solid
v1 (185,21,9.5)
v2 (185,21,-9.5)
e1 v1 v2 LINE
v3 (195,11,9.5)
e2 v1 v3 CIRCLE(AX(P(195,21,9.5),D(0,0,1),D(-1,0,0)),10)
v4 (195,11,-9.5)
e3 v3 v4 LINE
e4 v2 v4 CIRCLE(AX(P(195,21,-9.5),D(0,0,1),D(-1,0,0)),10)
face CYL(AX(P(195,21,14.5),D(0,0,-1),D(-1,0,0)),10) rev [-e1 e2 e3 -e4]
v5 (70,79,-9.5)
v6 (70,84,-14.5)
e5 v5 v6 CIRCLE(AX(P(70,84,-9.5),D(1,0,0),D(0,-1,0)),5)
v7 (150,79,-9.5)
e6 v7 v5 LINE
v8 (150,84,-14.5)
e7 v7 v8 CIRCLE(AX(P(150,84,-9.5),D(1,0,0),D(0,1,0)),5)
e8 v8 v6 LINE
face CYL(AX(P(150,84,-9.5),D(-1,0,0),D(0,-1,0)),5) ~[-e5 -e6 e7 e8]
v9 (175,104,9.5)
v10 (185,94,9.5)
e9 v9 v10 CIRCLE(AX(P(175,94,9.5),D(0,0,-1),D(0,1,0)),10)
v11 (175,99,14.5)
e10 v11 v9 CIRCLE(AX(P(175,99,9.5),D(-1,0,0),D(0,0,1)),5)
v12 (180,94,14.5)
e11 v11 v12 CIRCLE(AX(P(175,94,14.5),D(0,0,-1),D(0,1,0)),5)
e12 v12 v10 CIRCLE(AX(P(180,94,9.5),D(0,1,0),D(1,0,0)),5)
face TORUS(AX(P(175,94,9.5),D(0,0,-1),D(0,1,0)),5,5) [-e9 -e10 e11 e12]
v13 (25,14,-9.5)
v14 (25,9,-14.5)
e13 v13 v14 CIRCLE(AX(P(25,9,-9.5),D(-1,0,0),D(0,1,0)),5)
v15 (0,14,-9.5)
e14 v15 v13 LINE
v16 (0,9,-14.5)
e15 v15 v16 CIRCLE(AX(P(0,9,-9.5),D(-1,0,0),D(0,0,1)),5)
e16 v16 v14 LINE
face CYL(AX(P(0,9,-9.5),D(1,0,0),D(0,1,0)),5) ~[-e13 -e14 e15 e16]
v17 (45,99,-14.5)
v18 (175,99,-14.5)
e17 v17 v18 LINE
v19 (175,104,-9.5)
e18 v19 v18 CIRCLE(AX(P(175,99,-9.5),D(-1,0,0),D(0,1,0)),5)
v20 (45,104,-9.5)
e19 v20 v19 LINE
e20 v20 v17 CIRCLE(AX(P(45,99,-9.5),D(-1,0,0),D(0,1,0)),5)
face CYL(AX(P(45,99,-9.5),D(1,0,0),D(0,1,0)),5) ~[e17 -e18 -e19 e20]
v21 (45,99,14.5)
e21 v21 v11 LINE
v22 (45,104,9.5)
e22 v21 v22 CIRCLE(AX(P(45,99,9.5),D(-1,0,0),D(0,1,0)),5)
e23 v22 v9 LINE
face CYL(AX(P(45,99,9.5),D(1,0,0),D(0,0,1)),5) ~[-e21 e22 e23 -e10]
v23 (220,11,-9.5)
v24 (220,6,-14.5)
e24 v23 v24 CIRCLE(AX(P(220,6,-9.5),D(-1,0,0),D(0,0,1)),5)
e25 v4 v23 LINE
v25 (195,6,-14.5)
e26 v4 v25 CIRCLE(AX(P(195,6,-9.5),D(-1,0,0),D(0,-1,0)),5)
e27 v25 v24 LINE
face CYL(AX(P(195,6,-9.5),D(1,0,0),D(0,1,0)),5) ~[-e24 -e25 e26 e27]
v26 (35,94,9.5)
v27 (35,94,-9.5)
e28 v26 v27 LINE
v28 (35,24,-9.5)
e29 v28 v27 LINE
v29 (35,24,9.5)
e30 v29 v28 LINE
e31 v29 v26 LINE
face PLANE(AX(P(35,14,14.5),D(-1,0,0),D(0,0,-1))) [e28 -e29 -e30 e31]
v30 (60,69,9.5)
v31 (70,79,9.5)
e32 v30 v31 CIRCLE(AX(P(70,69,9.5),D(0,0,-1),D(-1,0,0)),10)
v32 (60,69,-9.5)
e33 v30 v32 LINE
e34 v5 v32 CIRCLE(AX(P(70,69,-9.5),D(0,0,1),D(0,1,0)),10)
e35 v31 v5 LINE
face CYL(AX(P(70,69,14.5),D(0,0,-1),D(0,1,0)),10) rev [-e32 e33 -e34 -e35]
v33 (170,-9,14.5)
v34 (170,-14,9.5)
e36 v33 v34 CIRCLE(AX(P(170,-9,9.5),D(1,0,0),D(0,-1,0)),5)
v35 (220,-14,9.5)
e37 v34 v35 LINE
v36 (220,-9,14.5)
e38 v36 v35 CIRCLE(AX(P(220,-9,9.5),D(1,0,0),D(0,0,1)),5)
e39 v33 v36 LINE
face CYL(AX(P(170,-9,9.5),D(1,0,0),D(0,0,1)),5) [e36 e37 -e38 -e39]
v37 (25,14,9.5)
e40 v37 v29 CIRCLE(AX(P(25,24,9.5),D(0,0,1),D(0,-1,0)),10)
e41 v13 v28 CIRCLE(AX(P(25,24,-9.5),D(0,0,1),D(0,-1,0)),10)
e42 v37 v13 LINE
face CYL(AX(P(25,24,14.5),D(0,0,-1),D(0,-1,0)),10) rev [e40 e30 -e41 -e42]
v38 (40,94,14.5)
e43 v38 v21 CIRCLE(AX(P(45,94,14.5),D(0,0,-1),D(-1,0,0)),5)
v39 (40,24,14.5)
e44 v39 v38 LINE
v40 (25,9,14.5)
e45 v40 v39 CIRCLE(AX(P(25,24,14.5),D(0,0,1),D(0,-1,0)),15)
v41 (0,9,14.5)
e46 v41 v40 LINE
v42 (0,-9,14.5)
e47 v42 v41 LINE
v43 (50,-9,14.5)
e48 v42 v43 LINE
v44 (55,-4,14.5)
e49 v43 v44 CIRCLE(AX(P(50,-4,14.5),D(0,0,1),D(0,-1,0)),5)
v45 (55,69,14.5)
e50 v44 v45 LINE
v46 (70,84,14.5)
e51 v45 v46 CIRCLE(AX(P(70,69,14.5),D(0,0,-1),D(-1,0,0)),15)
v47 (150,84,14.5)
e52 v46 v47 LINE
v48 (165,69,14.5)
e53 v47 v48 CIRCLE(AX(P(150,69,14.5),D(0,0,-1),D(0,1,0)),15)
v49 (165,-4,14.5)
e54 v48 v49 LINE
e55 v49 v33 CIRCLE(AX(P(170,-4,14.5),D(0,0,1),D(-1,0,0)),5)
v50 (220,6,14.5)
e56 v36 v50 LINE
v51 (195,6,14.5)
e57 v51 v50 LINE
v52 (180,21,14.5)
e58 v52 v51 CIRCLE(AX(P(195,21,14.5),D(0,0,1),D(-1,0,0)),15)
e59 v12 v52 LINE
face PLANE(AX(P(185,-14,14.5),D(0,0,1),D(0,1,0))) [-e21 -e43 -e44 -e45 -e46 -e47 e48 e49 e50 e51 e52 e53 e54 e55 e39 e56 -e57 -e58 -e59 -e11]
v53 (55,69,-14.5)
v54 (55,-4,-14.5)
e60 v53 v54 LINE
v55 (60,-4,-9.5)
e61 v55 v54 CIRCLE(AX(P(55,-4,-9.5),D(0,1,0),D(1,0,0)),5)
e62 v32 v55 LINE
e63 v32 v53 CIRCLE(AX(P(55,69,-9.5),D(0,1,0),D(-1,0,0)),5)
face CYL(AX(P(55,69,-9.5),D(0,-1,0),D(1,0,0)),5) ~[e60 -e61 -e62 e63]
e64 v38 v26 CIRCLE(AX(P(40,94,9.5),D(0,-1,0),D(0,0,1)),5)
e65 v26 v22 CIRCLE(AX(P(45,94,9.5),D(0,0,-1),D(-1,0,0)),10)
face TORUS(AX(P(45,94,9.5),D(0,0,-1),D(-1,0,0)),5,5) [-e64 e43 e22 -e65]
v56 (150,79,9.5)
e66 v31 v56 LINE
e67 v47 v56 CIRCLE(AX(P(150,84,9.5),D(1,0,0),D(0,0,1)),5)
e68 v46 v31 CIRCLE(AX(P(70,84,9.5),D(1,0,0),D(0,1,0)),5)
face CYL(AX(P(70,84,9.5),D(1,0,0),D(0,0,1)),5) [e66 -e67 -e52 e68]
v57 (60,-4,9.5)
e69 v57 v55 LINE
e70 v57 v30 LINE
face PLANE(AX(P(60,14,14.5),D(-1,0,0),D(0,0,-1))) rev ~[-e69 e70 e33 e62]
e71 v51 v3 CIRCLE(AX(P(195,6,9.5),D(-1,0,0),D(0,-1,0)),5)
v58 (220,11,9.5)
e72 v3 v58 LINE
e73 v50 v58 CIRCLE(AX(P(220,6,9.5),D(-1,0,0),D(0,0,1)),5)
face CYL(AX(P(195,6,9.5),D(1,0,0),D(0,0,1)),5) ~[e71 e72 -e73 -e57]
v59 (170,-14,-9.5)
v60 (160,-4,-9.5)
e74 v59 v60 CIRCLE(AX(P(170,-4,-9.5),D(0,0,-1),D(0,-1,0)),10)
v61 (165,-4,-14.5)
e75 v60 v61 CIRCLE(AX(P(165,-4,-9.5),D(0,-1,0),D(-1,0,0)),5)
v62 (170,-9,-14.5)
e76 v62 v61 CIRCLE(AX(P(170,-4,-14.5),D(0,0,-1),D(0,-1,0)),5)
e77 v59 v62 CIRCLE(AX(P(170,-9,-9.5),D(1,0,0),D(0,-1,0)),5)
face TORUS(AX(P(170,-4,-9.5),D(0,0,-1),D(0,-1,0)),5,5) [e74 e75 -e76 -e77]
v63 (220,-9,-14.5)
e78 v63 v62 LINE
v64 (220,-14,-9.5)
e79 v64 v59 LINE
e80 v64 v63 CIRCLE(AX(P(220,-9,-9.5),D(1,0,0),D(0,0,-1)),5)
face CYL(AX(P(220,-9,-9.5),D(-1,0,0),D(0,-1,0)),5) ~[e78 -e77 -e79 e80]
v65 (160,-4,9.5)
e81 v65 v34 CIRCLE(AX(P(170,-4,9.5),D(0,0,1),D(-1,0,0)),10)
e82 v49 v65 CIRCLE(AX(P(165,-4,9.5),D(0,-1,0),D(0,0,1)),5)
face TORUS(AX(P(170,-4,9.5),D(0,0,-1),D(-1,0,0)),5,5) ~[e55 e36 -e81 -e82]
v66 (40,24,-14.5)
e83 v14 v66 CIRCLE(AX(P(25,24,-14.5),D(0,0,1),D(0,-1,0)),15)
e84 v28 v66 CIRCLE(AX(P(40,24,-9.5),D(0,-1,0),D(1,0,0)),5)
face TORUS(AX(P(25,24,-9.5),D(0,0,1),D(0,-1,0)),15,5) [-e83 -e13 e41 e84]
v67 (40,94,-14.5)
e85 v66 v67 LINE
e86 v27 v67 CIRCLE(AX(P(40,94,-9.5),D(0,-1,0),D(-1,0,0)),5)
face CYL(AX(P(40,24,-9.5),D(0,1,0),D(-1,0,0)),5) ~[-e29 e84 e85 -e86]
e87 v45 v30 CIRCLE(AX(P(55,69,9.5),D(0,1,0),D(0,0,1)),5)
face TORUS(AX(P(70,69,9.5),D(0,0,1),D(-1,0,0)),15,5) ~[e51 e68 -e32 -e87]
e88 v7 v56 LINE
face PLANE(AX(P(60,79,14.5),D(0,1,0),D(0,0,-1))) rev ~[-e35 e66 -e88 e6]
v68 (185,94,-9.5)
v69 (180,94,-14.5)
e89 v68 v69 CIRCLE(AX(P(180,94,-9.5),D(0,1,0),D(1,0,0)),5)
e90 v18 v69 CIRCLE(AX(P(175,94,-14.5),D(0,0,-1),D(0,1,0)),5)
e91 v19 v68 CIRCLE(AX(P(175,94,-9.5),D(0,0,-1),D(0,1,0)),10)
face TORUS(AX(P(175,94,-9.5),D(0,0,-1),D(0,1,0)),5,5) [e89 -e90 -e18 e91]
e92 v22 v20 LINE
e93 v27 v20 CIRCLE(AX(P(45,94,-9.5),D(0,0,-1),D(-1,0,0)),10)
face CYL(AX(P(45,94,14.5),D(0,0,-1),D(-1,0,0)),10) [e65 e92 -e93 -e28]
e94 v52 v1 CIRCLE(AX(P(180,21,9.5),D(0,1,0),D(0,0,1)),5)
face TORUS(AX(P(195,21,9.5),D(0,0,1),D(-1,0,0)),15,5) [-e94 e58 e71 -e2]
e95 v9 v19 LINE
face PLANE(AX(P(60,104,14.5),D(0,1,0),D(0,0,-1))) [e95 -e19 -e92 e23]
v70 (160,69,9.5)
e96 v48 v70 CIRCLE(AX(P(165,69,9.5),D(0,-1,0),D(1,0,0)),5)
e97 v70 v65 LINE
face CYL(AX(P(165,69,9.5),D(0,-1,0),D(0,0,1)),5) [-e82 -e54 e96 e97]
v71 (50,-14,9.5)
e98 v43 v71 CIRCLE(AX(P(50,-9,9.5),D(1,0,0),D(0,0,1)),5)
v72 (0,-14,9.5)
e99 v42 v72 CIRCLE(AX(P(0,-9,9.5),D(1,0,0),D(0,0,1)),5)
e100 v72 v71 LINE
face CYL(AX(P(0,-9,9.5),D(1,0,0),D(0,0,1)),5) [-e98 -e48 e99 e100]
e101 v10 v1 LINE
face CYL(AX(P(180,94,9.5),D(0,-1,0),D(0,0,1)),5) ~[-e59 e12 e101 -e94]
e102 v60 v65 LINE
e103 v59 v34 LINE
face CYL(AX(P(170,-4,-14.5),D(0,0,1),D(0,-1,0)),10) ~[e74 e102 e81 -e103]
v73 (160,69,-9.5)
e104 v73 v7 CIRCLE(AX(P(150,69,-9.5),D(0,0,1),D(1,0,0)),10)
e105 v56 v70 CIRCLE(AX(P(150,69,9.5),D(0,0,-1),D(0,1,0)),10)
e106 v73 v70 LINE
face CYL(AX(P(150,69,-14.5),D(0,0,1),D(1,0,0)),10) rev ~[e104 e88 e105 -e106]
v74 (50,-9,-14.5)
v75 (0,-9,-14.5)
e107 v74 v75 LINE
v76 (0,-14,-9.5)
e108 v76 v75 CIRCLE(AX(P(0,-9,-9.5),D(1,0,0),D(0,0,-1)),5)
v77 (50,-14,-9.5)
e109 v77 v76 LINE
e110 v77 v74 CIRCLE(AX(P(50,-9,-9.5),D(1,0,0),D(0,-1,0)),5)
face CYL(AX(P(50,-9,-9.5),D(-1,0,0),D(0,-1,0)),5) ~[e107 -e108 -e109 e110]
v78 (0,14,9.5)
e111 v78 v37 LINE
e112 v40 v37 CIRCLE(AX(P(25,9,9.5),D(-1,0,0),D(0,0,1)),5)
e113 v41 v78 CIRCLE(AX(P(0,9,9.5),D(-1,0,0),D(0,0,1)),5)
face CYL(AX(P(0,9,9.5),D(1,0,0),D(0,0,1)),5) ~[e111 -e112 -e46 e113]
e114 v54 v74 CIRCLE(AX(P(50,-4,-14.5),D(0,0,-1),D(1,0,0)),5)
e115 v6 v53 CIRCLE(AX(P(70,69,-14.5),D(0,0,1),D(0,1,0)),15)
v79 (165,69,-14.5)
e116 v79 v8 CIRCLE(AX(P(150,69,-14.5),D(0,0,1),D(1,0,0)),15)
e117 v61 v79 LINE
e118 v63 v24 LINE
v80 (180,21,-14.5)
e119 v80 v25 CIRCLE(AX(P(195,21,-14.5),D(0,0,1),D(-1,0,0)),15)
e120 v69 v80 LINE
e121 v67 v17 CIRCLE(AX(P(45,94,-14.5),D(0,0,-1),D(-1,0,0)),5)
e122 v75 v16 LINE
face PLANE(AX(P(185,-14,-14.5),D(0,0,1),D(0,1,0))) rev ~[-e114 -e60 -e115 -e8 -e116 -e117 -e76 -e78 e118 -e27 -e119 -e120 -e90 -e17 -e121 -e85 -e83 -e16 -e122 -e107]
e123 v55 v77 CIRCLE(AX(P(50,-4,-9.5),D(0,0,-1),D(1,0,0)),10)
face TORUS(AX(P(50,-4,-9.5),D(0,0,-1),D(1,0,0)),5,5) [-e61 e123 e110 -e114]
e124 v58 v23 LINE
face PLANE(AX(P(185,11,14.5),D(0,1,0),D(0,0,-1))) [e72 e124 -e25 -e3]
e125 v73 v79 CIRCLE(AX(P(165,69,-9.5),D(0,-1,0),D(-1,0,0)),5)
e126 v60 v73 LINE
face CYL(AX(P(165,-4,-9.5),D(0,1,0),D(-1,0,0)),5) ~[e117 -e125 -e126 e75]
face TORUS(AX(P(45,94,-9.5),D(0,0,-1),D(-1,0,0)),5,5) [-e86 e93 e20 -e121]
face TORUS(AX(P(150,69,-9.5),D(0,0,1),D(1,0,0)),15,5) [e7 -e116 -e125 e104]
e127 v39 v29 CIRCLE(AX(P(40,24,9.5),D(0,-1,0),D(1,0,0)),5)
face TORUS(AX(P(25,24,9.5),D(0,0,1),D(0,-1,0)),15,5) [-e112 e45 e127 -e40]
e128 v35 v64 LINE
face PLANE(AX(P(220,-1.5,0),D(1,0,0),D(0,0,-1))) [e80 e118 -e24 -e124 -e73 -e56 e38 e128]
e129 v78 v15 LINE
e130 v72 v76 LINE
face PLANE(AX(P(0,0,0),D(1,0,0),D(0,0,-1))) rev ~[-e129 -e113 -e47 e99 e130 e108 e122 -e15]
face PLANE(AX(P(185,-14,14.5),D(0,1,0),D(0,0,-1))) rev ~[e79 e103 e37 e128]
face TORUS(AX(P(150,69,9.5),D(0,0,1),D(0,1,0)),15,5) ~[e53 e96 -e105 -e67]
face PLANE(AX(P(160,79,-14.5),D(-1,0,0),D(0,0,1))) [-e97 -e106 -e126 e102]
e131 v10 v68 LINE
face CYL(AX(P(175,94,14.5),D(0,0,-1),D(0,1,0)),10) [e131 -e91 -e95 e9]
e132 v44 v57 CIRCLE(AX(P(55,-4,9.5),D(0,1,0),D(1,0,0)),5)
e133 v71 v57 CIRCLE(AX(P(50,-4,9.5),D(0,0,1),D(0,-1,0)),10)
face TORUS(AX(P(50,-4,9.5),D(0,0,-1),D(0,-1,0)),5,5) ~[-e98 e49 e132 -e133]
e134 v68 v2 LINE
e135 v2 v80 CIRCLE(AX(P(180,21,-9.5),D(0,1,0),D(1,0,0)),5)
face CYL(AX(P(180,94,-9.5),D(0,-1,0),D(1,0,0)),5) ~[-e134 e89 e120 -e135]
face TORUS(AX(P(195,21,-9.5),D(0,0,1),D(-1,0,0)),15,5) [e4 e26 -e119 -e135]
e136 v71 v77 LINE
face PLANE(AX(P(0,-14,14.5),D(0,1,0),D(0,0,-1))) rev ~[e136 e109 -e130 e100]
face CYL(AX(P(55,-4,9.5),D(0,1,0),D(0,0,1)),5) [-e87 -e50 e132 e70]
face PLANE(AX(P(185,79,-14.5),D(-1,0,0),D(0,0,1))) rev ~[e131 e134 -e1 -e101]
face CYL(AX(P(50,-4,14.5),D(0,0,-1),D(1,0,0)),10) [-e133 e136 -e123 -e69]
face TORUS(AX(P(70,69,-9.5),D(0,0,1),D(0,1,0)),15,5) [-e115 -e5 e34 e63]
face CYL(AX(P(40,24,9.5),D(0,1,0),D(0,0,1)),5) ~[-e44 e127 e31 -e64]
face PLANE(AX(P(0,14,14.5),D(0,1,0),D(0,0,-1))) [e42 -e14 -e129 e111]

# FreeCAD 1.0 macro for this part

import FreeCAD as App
import Part
import Sketcher
from FreeCAD import Vector


def edges_at(feature, points):
    """Names of the edges that pass closest to the given points."""
    edges = feature.Shape.Edges
    near = lambda p: min(range(len(edges)), key=lambda i: edges[i].distToShape(Part.Vertex(*p))[0])
    return sorted({f"Edge{near(p) + 1}" for p in points})


def add_polygon(sketch, points):
    """Adds a closed chain of lines whose ends are joined by coincident constraints."""
    first, n = sketch.GeometryCount, len(points)
    for a, b in zip(points, points[1:] + points[:1]):
        sketch.addGeometry(Part.LineSegment(App.Vector(*a, 0), App.Vector(*b, 0)), False)
    for i in range(n):
        sketch.addConstraint(Sketcher.Constraint("Coincident", first + i, 2, first + (i + 1) % n, 1))

doc = App.newDocument("Part")
body = doc.addObject("PartDesign::Body", "Body")

# Sketch on YZ plane
sketch1 = doc.addObject("Sketcher::SketchObject", "Sketch")
body.addObject(sketch1)
sketch1.AttachmentSupport = (doc.YZ_Plane, [""])
sketch1.MapMode = "FlatFace"
add_polygon(sketch1, [(14, 14), (-14, 14), (-14, -14), (14, -14)])  # lines 0-3
sketch1.addConstraint([
    Sketcher.Constraint("Horizontal", 0),
    Sketcher.Constraint("Vertical", 1),
    Sketcher.Constraint("Horizontal", 2),
    Sketcher.Constraint("Vertical", 3),
    Sketcher.Constraint("Symmetric", 0, 2, 2, 2, -1, 1),
    Sketcher.Constraint("DistanceX", 0, 2, 0, 1, 28.0),
    Sketcher.Constraint("DistanceY", 1, 2, 1, 1, 29.0),
])
pad1 = doc.addObject("PartDesign::Pad", "Pad")
body.addObject(pad1)
pad1.Profile = sketch1
pad1.Length = 60

# Sketch on XZ plane
sketch2 = doc.addObject("Sketcher::SketchObject", "Sketch001")
body.addObject(sketch2)
sketch2.AttachmentSupport = (doc.XZ_Plane, [""])
sketch2.MapMode = "FlatFace"
sketch2.AttachmentOffset = App.Placement(Vector(0, 0, -14), App.Rotation())
add_polygon(sketch2, [(35, -14), (35, 14), (60, 14), (60, -14)])  # lines 0-3
sketch2.addConstraint([
    Sketcher.Constraint("Vertical", 0),
    Sketcher.Constraint("Horizontal", 1),
    Sketcher.Constraint("Vertical", 2),
    Sketcher.Constraint("Horizontal", 3),
    Sketcher.Constraint("DistanceX", 1, 1, 1, 2, 25.0),
    Sketcher.Constraint("DistanceY", 0, 1, 0, 2, 29.0),
    Sketcher.Constraint("DistanceX", -1, 1, 0, 2, 35.0),
    Sketcher.Constraint("DistanceY", -1, 1, 0, 2, 14.5),
])
pad2 = doc.addObject("PartDesign::Pad", "Pad001")
body.addObject(pad2)
pad2.Profile = sketch2
pad2.Length = 90
pad2.Reversed = True

# Sketch on YZ plane
sketch3 = doc.addObject("Sketcher::SketchObject", "Sketch002")
body.addObject(sketch3)
sketch3.AttachmentSupport = (doc.YZ_Plane, [""])
sketch3.MapMode = "FlatFace"
sketch3.AttachmentOffset = App.Placement(Vector(0, 0, 60), App.Rotation())
add_polygon(sketch3, [(104, 14), (79, 14), (79, -14), (104, -14)])  # lines 0-3
sketch3.addConstraint([
    Sketcher.Constraint("Horizontal", 0),
    Sketcher.Constraint("Vertical", 1),
    Sketcher.Constraint("Horizontal", 2),
    Sketcher.Constraint("Vertical", 3),
    Sketcher.Constraint("DistanceX", 0, 2, 0, 1, 25.0),
    Sketcher.Constraint("DistanceY", 1, 2, 1, 1, 29.0),
    Sketcher.Constraint("DistanceX", -1, 1, 0, 2, 79.0),
    Sketcher.Constraint("DistanceY", -1, 1, 0, 2, 14.5),
])
pad3 = doc.addObject("PartDesign::Pad", "Pad002")
body.addObject(pad3)
pad3.Profile = sketch3
pad3.Length = 125

# Sketch on XZ plane
sketch4 = doc.addObject("Sketcher::SketchObject", "Sketch003")
body.addObject(sketch4)
sketch4.AttachmentSupport = (doc.XZ_Plane, [""])
sketch4.MapMode = "FlatFace"
sketch4.AttachmentOffset = App.Placement(Vector(0, 0, -79), App.Rotation())
add_polygon(sketch4, [(160, 14), (160, -14), (185, -14), (185, 14)])  # lines 0-3
sketch4.addConstraint([
    Sketcher.Constraint("Vertical", 0),
    Sketcher.Constraint("Horizontal", 1),
    Sketcher.Constraint("Vertical", 2),
    Sketcher.Constraint("Horizontal", 3),
    Sketcher.Constraint("DistanceX", 1, 1, 1, 2, 25.0),
    Sketcher.Constraint("DistanceY", 0, 2, 0, 1, 29.0),
    Sketcher.Constraint("DistanceX", -1, 1, 0, 2, 160.0),
    Sketcher.Constraint("DistanceY", 0, 2, -1, 1, 14.5),
])
pad4 = doc.addObject("PartDesign::Pad", "Pad003")
body.addObject(pad4)
pad4.Profile = sketch4
pad4.Length = 93

# Sketch on YZ plane
sketch5 = doc.addObject("Sketcher::SketchObject", "Sketch004")
body.addObject(sketch5)
sketch5.AttachmentSupport = (doc.YZ_Plane, [""])
sketch5.MapMode = "FlatFace"
sketch5.AttachmentOffset = App.Placement(Vector(0, 0, 185), App.Rotation())
add_polygon(sketch5, [(11, 14), (-14, 14), (-14, -14), (11, -14)])  # lines 0-3
sketch5.addConstraint([
    Sketcher.Constraint("Horizontal", 0),
    Sketcher.Constraint("Vertical", 1),
    Sketcher.Constraint("Horizontal", 2),
    Sketcher.Constraint("Vertical", 3),
    Sketcher.Constraint("DistanceX", 0, 2, 0, 1, 25.0),
    Sketcher.Constraint("DistanceY", 1, 2, 1, 1, 29.0),
    Sketcher.Constraint("DistanceX", 0, 2, -1, 1, 14.0),
    Sketcher.Constraint("DistanceY", -1, 1, 0, 2, 14.5),
])
pad5 = doc.addObject("PartDesign::Pad", "Pad004")
body.addObject(pad5)
pad5.Profile = sketch5
pad5.Length = 35
doc.recompute()

fillet = doc.addObject("PartDesign::Fillet", "Fillet")
body.addObject(fillet)
fillet.Base = (pad5, edges_at(pad5, [
    (35, 14, 0),
    (35, 104, 0),
    (185, 104, 0),
    (160, 79, 0),
    (185, 11, 0),
]))
fillet.Radius = 10
doc.recompute()

fillet2 = doc.addObject("PartDesign::Fillet", "Fillet001")
body.addObject(fillet2)
fillet2.Base = (fillet, edges_at(fillet, [(60, 79, 0), (160, -14, 0), (60, -14, 0)]))
fillet2.Radius = 10
doc.recompute()

fillet3 = doc.addObject("PartDesign::Fillet", "Fillet002")
body.addObject(fillet3)
fillet3.Base = (fillet2, edges_at(fillet2, [
    (60, 32.5, 14.5),
    (60, 32.5, -14.5),
    (195, -14, -14.5),
    (160, 32.5, -14.5),
    (25, -14, -14.5),
    (162.929, -11.071, -14.5),
    (57.071, -11.071, -14.5),
    (25, -14, 14.5),
    (160, 32.5, 14.5),
    (162.929, -11.071, 14.5),
    (57.071, -11.071, 14.5),
    (62.929, 76.071, -14.5),
    (62.929, 76.071, 14.5),
    (195, -14, 14.5),
    (207.5, 11, -14.5),
    (207.5, 11, 14.5),
    (110, 79, 14.5),
    (110, 79, -14.5),
    (35, 59, 14.5),
    (35, 59, -14.5),
    (12.5, 14, -14.5),
    (12.5, 14, 14.5),
    (110, 104, 14.5),
    (110, 104, -14.5),
    (185, 57.5, 14.5),
    (182.071, 101.071, 14.5),
    (37.929, 101.071, 14.5),
    (185, 57.5, -14.5),
    (182.071, 101.071, -14.5),
    (37.929, 101.071, -14.5),
    (157.071, 76.071, -14.5),
    (157.071, 76.071, 14.5),
    (32.071, 16.929, 14.5),
    (32.071, 16.929, -14.5),
    (187.929, 13.929, 14.5),
    (187.929, 13.929, -14.5),
]))
fillet3.Radius = 5

doc.recompute()
